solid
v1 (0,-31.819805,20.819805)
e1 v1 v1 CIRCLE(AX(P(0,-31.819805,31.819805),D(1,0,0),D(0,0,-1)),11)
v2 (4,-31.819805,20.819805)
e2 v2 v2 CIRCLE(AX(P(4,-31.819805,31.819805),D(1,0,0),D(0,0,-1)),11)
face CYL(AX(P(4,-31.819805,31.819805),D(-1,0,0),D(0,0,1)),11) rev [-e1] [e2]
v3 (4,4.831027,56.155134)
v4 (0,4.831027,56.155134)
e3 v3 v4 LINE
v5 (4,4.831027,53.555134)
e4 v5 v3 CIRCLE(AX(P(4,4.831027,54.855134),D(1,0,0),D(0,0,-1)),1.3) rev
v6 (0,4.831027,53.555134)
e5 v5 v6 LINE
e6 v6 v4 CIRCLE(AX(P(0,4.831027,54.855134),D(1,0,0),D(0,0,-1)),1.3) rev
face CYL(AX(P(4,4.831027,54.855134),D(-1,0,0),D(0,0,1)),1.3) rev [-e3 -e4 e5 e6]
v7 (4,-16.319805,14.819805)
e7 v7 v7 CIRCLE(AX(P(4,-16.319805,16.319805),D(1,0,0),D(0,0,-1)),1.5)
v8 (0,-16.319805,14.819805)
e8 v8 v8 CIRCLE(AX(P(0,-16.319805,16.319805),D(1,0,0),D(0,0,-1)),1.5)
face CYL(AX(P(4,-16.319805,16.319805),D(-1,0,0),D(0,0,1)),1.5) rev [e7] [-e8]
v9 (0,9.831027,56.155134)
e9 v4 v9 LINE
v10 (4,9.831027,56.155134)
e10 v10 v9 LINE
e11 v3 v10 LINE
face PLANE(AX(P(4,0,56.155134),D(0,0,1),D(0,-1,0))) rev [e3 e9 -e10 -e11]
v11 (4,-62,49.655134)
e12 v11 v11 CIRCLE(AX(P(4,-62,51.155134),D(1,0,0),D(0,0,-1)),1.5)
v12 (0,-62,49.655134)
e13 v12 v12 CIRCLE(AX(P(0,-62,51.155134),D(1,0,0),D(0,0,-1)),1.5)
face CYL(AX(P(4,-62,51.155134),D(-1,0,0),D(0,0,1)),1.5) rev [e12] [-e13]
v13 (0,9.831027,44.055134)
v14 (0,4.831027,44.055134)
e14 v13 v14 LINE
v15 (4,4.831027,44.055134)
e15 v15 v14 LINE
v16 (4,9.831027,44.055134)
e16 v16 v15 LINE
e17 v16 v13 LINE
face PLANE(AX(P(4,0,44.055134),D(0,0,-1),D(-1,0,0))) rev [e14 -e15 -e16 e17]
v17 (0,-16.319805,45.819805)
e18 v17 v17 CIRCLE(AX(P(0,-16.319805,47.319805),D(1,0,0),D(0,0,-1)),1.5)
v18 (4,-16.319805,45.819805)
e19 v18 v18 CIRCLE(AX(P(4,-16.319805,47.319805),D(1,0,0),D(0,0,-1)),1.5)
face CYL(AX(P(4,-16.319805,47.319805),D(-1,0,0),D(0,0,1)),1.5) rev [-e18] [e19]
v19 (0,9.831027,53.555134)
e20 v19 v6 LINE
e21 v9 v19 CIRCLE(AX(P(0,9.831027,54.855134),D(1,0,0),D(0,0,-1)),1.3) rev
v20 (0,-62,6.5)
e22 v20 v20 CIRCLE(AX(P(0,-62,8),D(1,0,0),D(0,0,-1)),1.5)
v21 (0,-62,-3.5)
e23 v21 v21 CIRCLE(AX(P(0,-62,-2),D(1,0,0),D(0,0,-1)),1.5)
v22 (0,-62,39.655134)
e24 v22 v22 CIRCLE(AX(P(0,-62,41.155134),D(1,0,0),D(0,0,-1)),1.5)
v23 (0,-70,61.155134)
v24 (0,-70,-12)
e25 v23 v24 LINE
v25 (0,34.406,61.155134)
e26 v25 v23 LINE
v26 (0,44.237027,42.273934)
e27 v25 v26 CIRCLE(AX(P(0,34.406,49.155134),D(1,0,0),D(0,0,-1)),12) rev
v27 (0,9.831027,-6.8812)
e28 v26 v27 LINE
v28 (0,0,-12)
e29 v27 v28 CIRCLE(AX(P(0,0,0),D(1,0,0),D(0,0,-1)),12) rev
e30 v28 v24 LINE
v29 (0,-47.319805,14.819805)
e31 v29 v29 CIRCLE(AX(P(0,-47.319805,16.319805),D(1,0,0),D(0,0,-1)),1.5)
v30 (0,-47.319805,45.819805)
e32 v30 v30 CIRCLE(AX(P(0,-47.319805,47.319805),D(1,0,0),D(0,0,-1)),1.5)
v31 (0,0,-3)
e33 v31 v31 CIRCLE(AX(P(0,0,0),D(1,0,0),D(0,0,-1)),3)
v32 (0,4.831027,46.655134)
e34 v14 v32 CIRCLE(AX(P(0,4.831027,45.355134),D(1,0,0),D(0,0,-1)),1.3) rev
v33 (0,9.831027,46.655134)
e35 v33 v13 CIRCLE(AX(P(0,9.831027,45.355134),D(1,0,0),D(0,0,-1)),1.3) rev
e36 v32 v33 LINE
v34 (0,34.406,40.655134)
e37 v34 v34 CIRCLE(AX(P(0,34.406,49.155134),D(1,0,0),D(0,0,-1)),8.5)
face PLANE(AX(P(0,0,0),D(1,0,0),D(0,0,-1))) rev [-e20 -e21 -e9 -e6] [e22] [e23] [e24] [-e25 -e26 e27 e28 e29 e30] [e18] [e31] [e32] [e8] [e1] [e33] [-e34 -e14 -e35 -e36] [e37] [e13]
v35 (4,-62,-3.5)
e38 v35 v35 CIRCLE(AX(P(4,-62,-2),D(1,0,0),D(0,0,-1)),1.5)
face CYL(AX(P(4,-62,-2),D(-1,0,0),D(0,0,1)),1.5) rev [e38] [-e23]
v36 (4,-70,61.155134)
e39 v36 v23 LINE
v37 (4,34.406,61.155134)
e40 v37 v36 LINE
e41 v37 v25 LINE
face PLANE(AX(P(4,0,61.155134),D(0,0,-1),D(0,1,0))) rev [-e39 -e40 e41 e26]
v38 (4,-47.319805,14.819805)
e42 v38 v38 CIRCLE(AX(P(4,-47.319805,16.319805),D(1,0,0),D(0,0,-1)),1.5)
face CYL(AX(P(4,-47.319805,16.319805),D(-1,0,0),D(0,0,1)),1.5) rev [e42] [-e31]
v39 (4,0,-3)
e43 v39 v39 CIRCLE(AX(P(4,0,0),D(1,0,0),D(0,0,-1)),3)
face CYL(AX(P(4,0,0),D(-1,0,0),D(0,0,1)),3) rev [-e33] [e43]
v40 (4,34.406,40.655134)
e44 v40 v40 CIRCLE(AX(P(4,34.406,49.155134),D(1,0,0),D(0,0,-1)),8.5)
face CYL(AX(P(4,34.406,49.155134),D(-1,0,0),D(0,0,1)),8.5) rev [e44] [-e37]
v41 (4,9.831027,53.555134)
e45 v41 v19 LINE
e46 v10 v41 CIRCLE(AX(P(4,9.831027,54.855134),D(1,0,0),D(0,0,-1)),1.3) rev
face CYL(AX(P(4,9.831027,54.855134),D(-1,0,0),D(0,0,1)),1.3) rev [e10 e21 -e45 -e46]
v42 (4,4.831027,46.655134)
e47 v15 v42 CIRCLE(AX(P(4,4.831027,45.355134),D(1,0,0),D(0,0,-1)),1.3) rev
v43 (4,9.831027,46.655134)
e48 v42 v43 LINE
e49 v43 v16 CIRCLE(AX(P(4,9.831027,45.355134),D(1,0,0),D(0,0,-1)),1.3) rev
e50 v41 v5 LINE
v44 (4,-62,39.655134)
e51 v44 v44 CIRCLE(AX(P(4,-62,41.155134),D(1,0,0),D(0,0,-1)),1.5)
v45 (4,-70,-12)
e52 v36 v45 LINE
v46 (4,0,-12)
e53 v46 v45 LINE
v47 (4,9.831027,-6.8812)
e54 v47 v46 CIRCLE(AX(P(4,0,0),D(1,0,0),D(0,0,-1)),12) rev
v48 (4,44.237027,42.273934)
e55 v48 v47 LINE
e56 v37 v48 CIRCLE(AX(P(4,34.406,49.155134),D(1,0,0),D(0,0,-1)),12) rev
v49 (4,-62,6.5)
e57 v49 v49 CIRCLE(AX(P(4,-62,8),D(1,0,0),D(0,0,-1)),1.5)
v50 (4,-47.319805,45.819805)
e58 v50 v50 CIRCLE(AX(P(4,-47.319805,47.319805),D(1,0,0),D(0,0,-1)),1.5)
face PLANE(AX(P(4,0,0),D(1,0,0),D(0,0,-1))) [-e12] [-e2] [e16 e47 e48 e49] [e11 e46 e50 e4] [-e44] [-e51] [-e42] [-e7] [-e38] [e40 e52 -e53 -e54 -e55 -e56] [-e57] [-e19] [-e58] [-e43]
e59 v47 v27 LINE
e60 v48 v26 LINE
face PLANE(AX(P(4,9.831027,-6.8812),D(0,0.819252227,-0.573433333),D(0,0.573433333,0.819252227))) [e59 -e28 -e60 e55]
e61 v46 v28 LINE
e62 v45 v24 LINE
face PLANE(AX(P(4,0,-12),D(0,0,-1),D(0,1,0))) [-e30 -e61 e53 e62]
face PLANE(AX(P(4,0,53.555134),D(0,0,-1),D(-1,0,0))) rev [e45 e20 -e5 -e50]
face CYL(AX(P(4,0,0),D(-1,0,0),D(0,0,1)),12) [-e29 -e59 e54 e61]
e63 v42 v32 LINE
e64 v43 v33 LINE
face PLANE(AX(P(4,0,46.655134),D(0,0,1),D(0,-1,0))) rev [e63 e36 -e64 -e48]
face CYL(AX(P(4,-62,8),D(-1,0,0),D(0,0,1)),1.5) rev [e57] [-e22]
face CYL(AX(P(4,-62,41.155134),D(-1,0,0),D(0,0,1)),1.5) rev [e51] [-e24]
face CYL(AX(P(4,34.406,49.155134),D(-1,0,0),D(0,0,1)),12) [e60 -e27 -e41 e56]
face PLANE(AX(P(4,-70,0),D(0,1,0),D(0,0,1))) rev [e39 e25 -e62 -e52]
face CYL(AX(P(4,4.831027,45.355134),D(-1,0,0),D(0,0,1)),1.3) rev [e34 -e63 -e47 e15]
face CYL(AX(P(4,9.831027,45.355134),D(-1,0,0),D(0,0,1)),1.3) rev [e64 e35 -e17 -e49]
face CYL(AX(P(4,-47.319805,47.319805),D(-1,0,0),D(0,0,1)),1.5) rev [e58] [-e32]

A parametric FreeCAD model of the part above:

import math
import FreeCAD as App
import Part
import Sketcher
Q = App.Units.Quantity

doc = App.newDocument("Part")
body = doc.addObject("PartDesign::Body", "Body")

# Sketch on YZ plane
sketch1 = body.newObject("Sketcher::SketchObject", "Sketch")
sketch1.AttachmentSupport = (doc.getObject("YZ_Plane"), [""])
sketch1.MapMode = "FlatFace"
sketch1.addGeometry([
    Part.LineSegment(App.Vector(9.8, -6.9, 0), App.Vector(44.2, 42.3, 0)),  # 0
    Part.ArcOfCircle(Part.Circle(App.Vector(34.4, 49.2, 0), App.Vector(0, 0, 1), 12), math.radians(-35), math.radians(90)),  # 1
    Part.LineSegment(App.Vector(34.4, 61.2, 0), App.Vector(-70, 61.2, 0)),  # 2
    Part.LineSegment(App.Vector(-70, 61.2, 0), App.Vector(-70, -12, 0)),  # 3
    Part.LineSegment(App.Vector(-70, -12, 0), App.Vector(0, -12, 0)),  # 4
    Part.ArcOfCircle(Part.Circle(App.Vector(0, 0, 0), App.Vector(0, 0, 1), 12), math.radians(-90), math.radians(-35)),  # 5
    Part.Circle(App.Vector(-62, -2, 0), App.Vector(0, 0, 1), 1.5),  # 6
    Part.Circle(App.Vector(-62, 8, 0), App.Vector(0, 0, 1), 1.5),  # 7
    Part.Circle(App.Vector(-47.3, 16.3, 0), App.Vector(0, 0, 1), 1.5),  # 8
    Part.Circle(App.Vector(-16.3, 16.3, 0), App.Vector(0, 0, 1), 1.5),  # 9
    Part.Circle(App.Vector(-62, 41.2, 0), App.Vector(0, 0, 1), 1.5),  # 10
    Part.Circle(App.Vector(-62, 51.2, 0), App.Vector(0, 0, 1), 1.5),  # 11
    Part.Circle(App.Vector(-47.3, 47.3, 0), App.Vector(0, 0, 1), 1.5),  # 12
    Part.Circle(App.Vector(-31.8, 31.8, 0), App.Vector(0, 0, 1), 11),  # 13
    Part.Circle(App.Vector(-16.3, 47.3, 0), App.Vector(0, 0, 1), 1.5),  # 14
    Part.Circle(App.Vector(0, 0, 0), App.Vector(0, 0, 1), 3),  # 15
    Part.LineSegment(App.Vector(9.8, 44.1, 0), App.Vector(4.8, 44.1, 0)),  # 16
    Part.ArcOfCircle(Part.Circle(App.Vector(4.8, 45.4, 0), App.Vector(0, 0, 1), 1.3), math.radians(90), math.radians(270)),  # 17
    Part.LineSegment(App.Vector(4.8, 46.7, 0), App.Vector(9.8, 46.7, 0)),  # 18
    Part.ArcOfCircle(Part.Circle(App.Vector(9.8, 45.4, 0), App.Vector(0, 0, 1), 1.3), math.radians(-90), math.radians(90)),  # 19
    Part.LineSegment(App.Vector(9.8, 53.6, 0), App.Vector(4.8, 53.6, 0)),  # 20
    Part.ArcOfCircle(Part.Circle(App.Vector(4.8, 54.9, 0), App.Vector(0, 0, 1), 1.3), math.radians(90), math.radians(270)),  # 21
    Part.LineSegment(App.Vector(4.8, 56.2, 0), App.Vector(9.8, 56.2, 0)),  # 22
    Part.ArcOfCircle(Part.Circle(App.Vector(9.8, 54.9, 0), App.Vector(0, 0, 1), 1.3), math.radians(-90), math.radians(90)),  # 23
    Part.Circle(App.Vector(34.4, 49.2, 0), App.Vector(0, 0, 1), 8.5),  # 24
], False)
sketch1.addConstraint([
    Sketcher.Constraint("Tangent", 0, 2, 1, 1),
    Sketcher.Constraint("Tangent", 1, 2, 2, 1),
    Sketcher.Constraint("Coincident", 2, 2, 3, 1),
    Sketcher.Constraint("Coincident", 3, 2, 4, 1),
    Sketcher.Constraint("Tangent", 4, 2, 5, 1),
    Sketcher.Constraint("Tangent", 5, 2, 0, 1),
    Sketcher.Constraint("Tangent", 16, 2, 17, 2),
    Sketcher.Constraint("Tangent", 17, 1, 18, 1),
    Sketcher.Constraint("Tangent", 18, 2, 19, 2),
    Sketcher.Constraint("Tangent", 19, 1, 16, 1),
    Sketcher.Constraint("Tangent", 20, 2, 21, 2),
    Sketcher.Constraint("Tangent", 21, 1, 22, 1),
    Sketcher.Constraint("Tangent", 22, 2, 23, 2),
    Sketcher.Constraint("Tangent", 23, 1, 20, 1),
    Sketcher.Constraint("Horizontal", 2),
    Sketcher.Constraint("Vertical", 3),
    Sketcher.Constraint("Horizontal", 4),
    Sketcher.Constraint("Horizontal", 16),
    Sketcher.Constraint("Horizontal", 18),
    Sketcher.Constraint("Horizontal", 20),
    Sketcher.Constraint("Horizontal", 22),
    Sketcher.Constraint("Coincident", 5, 3, -1, 1),
    Sketcher.Constraint("Coincident", 15, 3, -1, 1),
    Sketcher.Constraint("Coincident", 24, 3, 1, 3),
    Sketcher.Constraint("Equal", 1, 5),
    Sketcher.Constraint("Equal", 6, 7),
    Sketcher.Constraint("Equal", 7, 8),
    Sketcher.Constraint("Equal", 8, 9),
    Sketcher.Constraint("Equal", 9, 10),
    Sketcher.Constraint("Equal", 10, 11),
    Sketcher.Constraint("Equal", 11, 12),
    Sketcher.Constraint("Equal", 12, 14),
    Sketcher.Constraint("Equal", 19, 21),
    Sketcher.Constraint("Horizontal", 8, 3, 9, 3),
    Sketcher.Constraint("Horizontal", 12, 3, 14, 3),
    Sketcher.Constraint("Vertical", 6, 3, 7, 3),
    Sketcher.Constraint("Vertical", 7, 3, 10, 3),
    Sketcher.Constraint("Vertical", 10, 3, 11, 3),
    Sketcher.Constraint("Vertical", 8, 3, 12, 3),
    Sketcher.Constraint("Vertical", 9, 3, 14, 3),
    Sketcher.Constraint("Vertical", 17, 3, 21, 3),
    Sketcher.Constraint("Vertical", 19, 3, 23, 3),
    Sketcher.Constraint("Vertical", 23, 3, 5, 2),
    Sketcher.Constraint("Diameter", 6, 3.0),
    Sketcher.Constraint("Diameter", 13, 22.0),
    Sketcher.Constraint("Diameter", 15, 6.0),
    Sketcher.Constraint("Diameter", 24, 17.0),
    Sketcher.Constraint("Radius", 1, 12.0),
    Sketcher.Constraint("Radius", 17, 1.3),
    Sketcher.Constraint("DistanceX", 4, 1, 4, 2, 70.0),
    Sketcher.Constraint("DistanceX", 16, 2, 16, 1, 5.0),
    Sketcher.Constraint("Distance", 0, 60.0),
    Sketcher.Constraint("DistanceX", 6, 3, -1, 1, 62.0),
    Sketcher.Constraint("DistanceY", 6, 3, -1, 1, 2.0),
    Sketcher.Constraint("DistanceY", -1, 1, 7, 3, 8.0),
    Sketcher.Constraint("DistanceX", 8, 3, 9, 3, 31.0),
    Sketcher.Constraint("DistanceY", 10, 3, 11, 3, 10.0),
    Sketcher.Constraint("DistanceY", 8, 3, 12, 3, 31.0),
    Sketcher.Constraint("DistanceY", 11, 3, 2, 2, 10.0),
    Sketcher.Constraint("Angle", 0, Q("55.010009 deg")),
    Sketcher.Constraint("DistanceX", 12, 3, 13, 3, 15.5),
    Sketcher.Constraint("DistanceY", 13, 3, 12, 3, 15.5),
    Sketcher.Constraint("DistanceY", 17, 3, 1, 3, 3.8),
    Sketcher.Constraint("DistanceY", 17, 3, 21, 3, 9.5),
    Sketcher.Constraint("DistanceY", 8, 3, 1, 3, 32.835328),
    Sketcher.Constraint("DistanceX", 14, 3, 17, 3, 21.150832),
])
pad1 = body.newObject("PartDesign::Pad", "Pad")
pad1.Profile = sketch1
pad1.Length = 4

doc.recompute()
